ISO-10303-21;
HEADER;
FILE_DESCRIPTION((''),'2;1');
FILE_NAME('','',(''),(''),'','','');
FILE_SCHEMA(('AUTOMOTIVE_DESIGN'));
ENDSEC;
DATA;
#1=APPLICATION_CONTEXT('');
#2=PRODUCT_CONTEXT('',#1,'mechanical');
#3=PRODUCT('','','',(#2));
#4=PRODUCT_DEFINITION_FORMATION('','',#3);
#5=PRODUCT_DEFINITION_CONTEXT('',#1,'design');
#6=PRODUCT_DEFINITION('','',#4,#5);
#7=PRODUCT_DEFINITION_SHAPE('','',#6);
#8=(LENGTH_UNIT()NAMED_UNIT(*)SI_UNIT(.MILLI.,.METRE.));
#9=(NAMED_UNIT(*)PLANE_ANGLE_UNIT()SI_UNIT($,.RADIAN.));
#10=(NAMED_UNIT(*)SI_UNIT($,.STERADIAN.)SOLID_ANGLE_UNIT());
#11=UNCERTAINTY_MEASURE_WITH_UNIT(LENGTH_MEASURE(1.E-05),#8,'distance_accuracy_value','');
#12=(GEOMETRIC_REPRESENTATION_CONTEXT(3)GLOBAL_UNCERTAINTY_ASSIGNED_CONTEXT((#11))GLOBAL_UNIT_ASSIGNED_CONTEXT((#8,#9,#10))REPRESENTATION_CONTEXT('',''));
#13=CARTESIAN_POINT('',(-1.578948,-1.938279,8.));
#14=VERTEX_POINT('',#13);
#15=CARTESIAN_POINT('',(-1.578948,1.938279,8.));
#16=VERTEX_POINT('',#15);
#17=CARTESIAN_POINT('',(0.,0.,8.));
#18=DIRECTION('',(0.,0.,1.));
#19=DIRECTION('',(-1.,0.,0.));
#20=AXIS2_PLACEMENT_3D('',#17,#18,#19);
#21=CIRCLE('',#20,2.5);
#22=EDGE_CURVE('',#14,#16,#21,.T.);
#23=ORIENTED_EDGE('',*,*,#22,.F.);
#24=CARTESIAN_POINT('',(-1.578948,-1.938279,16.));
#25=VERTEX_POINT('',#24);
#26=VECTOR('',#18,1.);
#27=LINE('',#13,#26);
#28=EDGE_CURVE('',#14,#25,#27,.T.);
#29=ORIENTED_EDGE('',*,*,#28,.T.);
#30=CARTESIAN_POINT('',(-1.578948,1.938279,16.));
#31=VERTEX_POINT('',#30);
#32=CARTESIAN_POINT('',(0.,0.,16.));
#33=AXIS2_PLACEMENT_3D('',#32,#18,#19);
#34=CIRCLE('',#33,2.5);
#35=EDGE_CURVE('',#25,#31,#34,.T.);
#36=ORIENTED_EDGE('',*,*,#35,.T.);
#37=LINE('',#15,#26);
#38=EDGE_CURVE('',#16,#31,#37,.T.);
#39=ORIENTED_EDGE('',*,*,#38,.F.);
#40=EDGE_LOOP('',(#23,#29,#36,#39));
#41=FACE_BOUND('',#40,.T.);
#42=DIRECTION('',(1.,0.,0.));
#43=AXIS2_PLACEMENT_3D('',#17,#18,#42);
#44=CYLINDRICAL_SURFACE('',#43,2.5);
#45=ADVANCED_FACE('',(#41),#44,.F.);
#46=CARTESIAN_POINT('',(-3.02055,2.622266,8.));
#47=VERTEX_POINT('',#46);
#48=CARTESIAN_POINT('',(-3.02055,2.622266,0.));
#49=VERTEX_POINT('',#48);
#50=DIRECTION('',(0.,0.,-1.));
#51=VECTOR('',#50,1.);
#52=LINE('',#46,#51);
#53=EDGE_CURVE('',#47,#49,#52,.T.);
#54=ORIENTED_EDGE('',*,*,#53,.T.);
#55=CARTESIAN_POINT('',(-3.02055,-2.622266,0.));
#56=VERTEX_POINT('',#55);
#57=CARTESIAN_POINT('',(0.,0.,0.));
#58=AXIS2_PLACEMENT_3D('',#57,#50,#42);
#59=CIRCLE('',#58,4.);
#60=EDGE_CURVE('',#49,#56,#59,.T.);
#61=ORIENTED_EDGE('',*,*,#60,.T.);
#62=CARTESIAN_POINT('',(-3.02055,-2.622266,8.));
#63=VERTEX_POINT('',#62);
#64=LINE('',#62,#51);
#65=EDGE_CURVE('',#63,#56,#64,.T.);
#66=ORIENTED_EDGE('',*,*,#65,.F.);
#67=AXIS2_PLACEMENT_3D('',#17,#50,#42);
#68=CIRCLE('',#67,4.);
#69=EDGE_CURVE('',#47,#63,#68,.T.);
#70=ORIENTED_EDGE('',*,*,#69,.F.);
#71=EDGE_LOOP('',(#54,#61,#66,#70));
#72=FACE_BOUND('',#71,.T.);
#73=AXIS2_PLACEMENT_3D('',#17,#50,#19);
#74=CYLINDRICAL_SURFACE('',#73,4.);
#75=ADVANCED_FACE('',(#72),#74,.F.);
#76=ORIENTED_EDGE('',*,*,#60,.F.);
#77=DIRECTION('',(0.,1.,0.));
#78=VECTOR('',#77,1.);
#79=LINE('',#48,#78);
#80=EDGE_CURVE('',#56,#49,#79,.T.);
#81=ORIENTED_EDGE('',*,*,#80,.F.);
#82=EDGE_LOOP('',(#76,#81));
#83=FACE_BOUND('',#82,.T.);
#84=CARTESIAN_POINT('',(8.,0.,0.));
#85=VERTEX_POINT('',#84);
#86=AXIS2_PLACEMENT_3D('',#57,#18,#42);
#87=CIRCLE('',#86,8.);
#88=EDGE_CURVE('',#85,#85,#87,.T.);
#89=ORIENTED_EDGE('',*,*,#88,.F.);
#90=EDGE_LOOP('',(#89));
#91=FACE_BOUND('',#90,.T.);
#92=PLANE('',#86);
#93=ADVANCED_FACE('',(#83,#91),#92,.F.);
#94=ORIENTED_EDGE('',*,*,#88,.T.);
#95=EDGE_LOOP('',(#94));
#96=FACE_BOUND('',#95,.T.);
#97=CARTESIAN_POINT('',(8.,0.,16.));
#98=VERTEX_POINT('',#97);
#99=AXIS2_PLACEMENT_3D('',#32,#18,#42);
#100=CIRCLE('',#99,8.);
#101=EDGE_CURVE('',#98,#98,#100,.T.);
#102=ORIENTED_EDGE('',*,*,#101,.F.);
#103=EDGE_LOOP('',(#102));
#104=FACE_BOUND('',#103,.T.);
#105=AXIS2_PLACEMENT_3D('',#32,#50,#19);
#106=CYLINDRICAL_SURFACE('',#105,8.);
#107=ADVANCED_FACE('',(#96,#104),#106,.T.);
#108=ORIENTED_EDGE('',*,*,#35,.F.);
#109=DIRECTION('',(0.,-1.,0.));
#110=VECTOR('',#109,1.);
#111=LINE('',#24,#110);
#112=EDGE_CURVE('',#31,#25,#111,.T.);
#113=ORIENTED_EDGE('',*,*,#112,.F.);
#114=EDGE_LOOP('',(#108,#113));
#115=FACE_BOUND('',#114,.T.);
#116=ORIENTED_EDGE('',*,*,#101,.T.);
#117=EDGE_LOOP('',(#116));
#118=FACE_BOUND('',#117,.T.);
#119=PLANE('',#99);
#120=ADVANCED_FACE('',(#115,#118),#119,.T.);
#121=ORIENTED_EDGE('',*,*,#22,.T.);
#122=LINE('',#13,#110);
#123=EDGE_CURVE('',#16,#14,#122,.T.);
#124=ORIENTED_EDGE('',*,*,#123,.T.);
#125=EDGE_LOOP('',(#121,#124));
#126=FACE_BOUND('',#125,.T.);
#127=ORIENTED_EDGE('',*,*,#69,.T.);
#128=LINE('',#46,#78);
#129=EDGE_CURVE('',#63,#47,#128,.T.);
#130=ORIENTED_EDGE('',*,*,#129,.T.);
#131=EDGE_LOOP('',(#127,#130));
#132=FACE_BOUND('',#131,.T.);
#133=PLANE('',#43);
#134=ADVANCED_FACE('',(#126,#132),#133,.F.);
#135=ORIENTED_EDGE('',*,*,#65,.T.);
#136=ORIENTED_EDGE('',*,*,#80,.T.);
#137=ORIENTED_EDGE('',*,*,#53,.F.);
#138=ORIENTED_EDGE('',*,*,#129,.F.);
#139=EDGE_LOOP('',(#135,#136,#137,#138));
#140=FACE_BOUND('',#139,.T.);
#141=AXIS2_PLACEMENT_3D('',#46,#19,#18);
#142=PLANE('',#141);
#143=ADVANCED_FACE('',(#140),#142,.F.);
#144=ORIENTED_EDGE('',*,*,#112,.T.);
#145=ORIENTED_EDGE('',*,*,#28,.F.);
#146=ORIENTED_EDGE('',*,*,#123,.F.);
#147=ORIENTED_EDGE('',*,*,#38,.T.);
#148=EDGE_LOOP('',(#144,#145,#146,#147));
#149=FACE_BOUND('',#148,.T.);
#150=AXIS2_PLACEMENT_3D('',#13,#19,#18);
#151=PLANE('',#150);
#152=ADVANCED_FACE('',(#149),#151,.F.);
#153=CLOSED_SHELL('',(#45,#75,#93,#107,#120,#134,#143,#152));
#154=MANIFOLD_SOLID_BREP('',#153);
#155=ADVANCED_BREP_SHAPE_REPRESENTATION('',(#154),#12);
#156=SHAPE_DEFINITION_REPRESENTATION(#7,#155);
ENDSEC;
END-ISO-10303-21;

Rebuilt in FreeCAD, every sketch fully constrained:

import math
import FreeCAD as App
import Part
import Sketcher

V = App.Vector
Q = App.Units.Quantity

doc = App.newDocument("Part")
body = doc.addObject("PartDesign::Body", "Body")

sketch1 = body.newObject("Sketcher::SketchObject", "Sketch")
sketch1.AttachmentSupport = (doc.getObject("XY_Plane"), [""])
sketch1.MapMode = "FlatFace"
sketch1.addGeometry(Part.Circle(V(0, 0, 0), V(0, 0, 1), 8), False)
sketch1.addConstraint(Sketcher.Constraint("Coincident", 0, 3, -1, 1))
sketch1.addConstraint(Sketcher.Constraint("Diameter", 0, Q("16 mm")))
pad1 = body.newObject("PartDesign::Pad", "Pad")
pad1.Profile = sketch1
pad1.Length = 16

sketch2 = body.newObject("Sketcher::SketchObject", "Sketch001")
sketch2.AttachmentSupport = (doc.getObject("XY_Plane"), [""])
sketch2.MapMode = "FlatFace"
sketch2.addGeometry(Part.LineSegment(V(-3, -2.6, 0), V(-3, 2.6, 0)), False)
sketch2.addGeometry(Part.ArcOfCircle(Part.Circle(V(0, 0, 0), V(0, 0, 1), 4), math.radians(-139), math.radians(139)), False)
sketch2.addConstraint(Sketcher.Constraint("Coincident", 0, 1, 1, 1))
sketch2.addConstraint(Sketcher.Constraint("Coincident", 1, 2, 0, 2))
sketch2.addConstraint(Sketcher.Constraint("Vertical", 0))
sketch2.addConstraint(Sketcher.Constraint("Coincident", 1, 3, -1, 1))
sketch2.addConstraint(Sketcher.Constraint("Radius", 1, Q("4 mm")))
sketch2.addConstraint(Sketcher.Constraint("DistanceY", 0, 1, 0, 2, Q("5.244531 mm")))
pocket1 = body.newObject("PartDesign::Pocket", "Pocket")
pocket1.Profile = sketch2
pocket1.Length = 8
pocket1.Reversed = True

sketch3 = body.newObject("Sketcher::SketchObject", "Sketch002")
sketch3.AttachmentSupport = (doc.getObject("XY_Plane"), [""])
sketch3.MapMode = "FlatFace"
sketch3.AttachmentOffset = App.Placement(V(0, 0, 16), App.Rotation())
sketch3.addGeometry(Part.LineSegment(V(-1.6, 1.9, 0), V(-1.6, -1.9, 0)), False)
sketch3.addGeometry(Part.ArcOfCircle(Part.Circle(V(0, 0, 0), V(0, 0, 1), 2.5), math.radians(-129), math.radians(129)), False)
sketch3.addConstraint(Sketcher.Constraint("Coincident", 0, 1, 1, 2))
sketch3.addConstraint(Sketcher.Constraint("Coincident", 1, 1, 0, 2))
sketch3.addConstraint(Sketcher.Constraint("Vertical", 0))
sketch3.addConstraint(Sketcher.Constraint("Coincident", 1, 3, -1, 1))
sketch3.addConstraint(Sketcher.Constraint("Radius", 1, Q("2.5 mm")))
sketch3.addConstraint(Sketcher.Constraint("DistanceY", 0, 2, 0, 1, Q("3.876558 mm")))
pocket2 = body.newObject("PartDesign::Pocket", "Pocket001")
pocket2.Profile = sketch3
pocket2.Length = 8

doc.recompute()
